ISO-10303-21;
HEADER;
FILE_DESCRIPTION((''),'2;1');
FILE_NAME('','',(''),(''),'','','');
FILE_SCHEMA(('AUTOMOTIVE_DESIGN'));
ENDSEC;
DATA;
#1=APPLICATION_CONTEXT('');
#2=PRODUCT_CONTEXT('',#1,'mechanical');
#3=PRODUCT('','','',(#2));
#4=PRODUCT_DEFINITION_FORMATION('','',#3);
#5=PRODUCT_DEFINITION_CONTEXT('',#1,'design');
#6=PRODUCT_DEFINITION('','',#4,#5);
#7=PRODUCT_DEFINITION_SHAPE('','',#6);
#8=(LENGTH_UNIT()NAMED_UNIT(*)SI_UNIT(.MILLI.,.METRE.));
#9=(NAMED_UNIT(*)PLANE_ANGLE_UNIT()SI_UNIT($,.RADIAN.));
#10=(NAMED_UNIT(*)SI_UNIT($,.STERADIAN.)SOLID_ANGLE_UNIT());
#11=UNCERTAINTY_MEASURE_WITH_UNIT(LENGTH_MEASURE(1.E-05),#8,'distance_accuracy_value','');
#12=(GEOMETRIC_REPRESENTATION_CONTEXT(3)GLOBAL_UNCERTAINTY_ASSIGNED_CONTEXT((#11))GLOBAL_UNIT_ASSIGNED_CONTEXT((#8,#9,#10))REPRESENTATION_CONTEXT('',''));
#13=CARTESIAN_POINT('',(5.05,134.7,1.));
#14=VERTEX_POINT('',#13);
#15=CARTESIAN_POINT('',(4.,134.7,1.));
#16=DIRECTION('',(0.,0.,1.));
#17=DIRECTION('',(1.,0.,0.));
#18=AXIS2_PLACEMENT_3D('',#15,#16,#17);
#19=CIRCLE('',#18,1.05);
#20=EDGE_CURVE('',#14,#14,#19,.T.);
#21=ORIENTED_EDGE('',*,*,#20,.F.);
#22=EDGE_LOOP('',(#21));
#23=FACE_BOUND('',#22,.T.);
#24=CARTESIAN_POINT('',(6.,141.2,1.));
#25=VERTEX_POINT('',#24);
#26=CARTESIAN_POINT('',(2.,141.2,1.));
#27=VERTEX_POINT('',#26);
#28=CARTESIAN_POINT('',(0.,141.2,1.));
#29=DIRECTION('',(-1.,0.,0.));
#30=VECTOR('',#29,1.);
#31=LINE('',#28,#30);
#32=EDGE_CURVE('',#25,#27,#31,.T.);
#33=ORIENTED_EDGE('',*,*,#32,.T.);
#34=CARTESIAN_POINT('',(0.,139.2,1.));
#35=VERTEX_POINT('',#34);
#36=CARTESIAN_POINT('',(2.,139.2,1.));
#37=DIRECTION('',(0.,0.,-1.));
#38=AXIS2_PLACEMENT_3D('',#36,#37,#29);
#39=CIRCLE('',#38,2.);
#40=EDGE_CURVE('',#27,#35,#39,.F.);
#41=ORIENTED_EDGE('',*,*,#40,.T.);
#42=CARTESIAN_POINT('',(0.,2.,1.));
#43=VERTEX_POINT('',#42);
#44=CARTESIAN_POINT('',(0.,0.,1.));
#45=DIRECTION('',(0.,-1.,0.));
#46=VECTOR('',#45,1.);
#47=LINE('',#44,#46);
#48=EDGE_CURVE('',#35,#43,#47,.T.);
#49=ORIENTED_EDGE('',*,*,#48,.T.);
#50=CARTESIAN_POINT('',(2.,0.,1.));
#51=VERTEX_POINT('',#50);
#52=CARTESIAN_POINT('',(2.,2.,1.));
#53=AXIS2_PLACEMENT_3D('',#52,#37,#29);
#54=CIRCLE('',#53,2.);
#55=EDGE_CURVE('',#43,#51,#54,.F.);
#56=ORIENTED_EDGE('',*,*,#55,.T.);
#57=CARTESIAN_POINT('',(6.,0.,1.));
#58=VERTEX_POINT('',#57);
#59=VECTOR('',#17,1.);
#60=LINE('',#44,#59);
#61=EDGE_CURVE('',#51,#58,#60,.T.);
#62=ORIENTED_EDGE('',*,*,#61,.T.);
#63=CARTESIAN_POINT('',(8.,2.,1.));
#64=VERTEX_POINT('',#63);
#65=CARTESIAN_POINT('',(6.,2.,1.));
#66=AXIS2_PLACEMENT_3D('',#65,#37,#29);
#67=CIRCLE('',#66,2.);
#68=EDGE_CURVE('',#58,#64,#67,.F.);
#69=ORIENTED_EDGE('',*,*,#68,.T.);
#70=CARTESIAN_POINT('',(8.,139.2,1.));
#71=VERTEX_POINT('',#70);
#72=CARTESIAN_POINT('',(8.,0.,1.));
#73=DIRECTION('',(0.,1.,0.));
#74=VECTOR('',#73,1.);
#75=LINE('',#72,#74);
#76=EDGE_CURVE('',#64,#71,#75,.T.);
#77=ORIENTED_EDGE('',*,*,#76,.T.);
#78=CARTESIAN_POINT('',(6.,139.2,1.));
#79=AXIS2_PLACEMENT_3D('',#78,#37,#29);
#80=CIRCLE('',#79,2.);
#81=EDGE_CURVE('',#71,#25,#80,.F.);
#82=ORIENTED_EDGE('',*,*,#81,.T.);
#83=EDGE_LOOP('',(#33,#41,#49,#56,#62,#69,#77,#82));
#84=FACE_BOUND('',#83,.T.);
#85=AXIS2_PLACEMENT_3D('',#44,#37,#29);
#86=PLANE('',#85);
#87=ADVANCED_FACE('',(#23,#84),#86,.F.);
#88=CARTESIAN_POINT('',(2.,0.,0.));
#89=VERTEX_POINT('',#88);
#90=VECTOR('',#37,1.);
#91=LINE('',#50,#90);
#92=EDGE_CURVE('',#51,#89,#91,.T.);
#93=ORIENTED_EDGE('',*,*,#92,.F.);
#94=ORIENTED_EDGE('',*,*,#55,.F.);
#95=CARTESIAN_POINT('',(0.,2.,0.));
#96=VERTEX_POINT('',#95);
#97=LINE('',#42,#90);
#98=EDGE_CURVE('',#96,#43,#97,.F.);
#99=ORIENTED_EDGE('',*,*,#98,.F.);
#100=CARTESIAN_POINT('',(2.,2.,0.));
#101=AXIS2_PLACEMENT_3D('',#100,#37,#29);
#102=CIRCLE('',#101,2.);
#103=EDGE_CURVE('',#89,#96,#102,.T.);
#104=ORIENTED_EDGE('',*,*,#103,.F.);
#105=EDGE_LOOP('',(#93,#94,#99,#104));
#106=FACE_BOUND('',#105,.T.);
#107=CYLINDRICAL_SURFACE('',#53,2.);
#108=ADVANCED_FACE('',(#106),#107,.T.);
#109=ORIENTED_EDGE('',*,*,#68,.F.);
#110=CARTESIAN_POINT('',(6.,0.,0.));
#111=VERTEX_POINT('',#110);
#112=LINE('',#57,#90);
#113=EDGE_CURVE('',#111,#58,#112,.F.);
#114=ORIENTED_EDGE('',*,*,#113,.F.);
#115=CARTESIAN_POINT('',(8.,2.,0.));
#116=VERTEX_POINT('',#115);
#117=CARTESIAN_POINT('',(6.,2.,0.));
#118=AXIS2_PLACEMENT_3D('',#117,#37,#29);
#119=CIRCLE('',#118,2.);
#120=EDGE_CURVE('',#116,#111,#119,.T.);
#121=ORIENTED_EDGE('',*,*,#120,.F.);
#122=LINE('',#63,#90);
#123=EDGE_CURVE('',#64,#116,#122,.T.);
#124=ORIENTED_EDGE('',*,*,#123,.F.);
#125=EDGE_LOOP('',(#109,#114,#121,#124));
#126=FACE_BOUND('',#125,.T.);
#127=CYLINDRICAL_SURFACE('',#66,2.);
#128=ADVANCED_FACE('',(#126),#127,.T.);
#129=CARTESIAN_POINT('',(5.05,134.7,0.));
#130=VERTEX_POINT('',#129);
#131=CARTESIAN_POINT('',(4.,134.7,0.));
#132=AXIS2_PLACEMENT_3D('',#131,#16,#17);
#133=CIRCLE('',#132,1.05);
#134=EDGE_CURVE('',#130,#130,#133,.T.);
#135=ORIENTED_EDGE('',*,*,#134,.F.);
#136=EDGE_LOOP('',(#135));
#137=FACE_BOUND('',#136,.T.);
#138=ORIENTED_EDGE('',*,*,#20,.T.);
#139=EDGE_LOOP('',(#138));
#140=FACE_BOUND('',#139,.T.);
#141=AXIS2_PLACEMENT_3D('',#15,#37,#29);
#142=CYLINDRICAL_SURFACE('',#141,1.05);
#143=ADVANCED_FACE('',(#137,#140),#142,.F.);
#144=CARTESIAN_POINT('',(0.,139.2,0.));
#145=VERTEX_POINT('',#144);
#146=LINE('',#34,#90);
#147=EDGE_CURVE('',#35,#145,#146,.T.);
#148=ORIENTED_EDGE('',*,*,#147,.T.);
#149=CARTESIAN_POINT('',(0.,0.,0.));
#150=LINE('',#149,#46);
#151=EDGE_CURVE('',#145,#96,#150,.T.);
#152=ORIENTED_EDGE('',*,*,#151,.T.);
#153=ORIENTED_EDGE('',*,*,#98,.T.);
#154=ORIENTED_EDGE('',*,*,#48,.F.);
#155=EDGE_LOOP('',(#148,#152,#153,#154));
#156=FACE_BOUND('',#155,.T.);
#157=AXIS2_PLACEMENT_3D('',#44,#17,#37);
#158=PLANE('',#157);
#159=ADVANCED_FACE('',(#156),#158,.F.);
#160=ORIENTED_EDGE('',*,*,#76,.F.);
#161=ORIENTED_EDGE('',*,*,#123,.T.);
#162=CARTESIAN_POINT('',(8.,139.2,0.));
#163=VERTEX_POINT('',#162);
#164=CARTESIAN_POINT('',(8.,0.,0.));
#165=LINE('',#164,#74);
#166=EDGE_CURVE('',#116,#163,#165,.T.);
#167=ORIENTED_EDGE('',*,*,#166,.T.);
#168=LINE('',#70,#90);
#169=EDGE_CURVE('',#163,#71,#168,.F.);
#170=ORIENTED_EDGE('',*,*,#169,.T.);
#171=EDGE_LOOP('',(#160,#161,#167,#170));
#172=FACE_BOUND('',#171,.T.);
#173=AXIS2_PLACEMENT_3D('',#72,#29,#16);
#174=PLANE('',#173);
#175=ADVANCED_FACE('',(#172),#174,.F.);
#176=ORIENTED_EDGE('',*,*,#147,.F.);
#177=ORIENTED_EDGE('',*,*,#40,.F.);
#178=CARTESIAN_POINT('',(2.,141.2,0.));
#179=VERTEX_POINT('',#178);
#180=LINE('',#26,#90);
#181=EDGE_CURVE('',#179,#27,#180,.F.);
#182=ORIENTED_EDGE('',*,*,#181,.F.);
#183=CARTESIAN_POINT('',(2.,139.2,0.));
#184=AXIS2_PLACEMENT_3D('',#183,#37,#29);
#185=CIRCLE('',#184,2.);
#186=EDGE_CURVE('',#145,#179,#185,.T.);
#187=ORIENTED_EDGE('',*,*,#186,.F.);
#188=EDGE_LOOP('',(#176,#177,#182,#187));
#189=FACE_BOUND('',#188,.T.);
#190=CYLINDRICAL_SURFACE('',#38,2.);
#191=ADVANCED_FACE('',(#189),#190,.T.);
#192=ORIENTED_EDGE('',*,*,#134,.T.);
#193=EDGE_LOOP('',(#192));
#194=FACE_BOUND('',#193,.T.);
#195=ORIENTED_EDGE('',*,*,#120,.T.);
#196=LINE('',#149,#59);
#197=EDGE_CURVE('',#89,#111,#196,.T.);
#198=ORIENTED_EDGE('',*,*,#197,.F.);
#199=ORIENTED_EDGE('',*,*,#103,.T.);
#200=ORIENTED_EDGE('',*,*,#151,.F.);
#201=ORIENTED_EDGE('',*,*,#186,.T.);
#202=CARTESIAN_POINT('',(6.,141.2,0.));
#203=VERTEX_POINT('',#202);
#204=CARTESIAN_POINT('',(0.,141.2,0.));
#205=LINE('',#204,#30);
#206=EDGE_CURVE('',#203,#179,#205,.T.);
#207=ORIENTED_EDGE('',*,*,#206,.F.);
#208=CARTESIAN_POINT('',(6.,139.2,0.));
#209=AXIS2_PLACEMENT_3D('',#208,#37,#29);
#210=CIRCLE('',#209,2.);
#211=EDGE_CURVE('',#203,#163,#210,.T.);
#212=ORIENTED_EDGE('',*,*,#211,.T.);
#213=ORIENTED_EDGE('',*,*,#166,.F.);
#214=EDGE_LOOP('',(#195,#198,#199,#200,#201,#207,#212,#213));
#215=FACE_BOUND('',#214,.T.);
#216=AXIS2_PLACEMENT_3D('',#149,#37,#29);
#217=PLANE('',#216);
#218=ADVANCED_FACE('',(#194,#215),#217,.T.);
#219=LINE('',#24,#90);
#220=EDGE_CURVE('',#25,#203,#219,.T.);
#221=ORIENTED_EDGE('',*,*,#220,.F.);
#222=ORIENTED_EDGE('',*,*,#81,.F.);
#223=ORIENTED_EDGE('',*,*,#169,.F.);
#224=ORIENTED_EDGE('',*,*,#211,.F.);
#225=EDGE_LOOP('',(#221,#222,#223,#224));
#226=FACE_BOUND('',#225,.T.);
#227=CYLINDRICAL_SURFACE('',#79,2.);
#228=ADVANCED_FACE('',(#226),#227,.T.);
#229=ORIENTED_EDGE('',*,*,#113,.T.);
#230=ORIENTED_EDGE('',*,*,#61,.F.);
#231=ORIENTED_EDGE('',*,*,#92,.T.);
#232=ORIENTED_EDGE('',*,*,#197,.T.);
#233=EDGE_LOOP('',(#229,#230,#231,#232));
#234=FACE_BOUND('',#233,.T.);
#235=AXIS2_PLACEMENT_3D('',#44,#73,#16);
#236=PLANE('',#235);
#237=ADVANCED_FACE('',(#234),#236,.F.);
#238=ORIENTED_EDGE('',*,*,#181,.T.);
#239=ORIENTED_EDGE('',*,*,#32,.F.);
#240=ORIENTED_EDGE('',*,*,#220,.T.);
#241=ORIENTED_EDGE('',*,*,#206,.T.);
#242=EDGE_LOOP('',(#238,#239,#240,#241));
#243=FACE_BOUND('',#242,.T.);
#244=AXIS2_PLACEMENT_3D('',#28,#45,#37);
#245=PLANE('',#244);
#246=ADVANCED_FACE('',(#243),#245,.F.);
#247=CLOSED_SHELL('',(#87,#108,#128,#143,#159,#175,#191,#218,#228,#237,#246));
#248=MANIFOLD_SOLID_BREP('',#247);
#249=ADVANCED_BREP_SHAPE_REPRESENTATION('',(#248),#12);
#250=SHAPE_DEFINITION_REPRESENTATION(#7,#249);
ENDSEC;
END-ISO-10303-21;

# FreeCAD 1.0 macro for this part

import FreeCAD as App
import Part
import Sketcher


def edges_at(feature, points):
    """Names of the edges that pass closest to the given points."""
    edges = feature.Shape.Edges
    near = lambda p: min(range(len(edges)), key=lambda i: edges[i].distToShape(Part.Vertex(*p))[0])
    return sorted({f"Edge{near(p) + 1}" for p in points})

doc = App.newDocument("Part")
params = doc.addObject("Spreadsheet::Sheet", "Params")
for row, (alias, value) in enumerate([
    ("sketch1_diameter", "2.1 mm"),
    ("sketch1_width", "8 mm"),
    ("sketch1_height", "141.2 mm"),
    ("pad1_length", "1 mm"),
    ("fillet_radius", "2 mm"),
], start=1):
    params.set(f"A{row}", alias)
    params.set(f"B{row}", "=" + value)
    params.setAlias(f"B{row}", alias)

body = doc.addObject("PartDesign::Body", "Body")

sketch1 = body.newObject("Sketcher::SketchObject", "Sketch")
sketch1.AttachmentSupport = (doc.getObject("XY_Plane"), [""])
sketch1.MapMode = "FlatFace"
sketch1.addGeometry(Part.LineSegment(App.Vector(0, 141.2, 0), App.Vector(0, 0, 0)), False)
sketch1.addGeometry(Part.LineSegment(App.Vector(0, 0, 0), App.Vector(8, 0, 0)), False)
sketch1.addGeometry(Part.LineSegment(App.Vector(8, 0, 0), App.Vector(8, 141.2, 0)), False)
sketch1.addGeometry(Part.LineSegment(App.Vector(8, 141.2, 0), App.Vector(0, 141.2, 0)), False)
sketch1.addGeometry(Part.Circle(App.Vector(4, 134.7, 0), App.Vector(0, 0, 1), 1.1), False)
sketch1.addConstraint(Sketcher.Constraint("Coincident", 0, 2, 1, 1))
sketch1.addConstraint(Sketcher.Constraint("Coincident", 1, 2, 2, 1))
sketch1.addConstraint(Sketcher.Constraint("Coincident", 2, 2, 3, 1))
sketch1.addConstraint(Sketcher.Constraint("Coincident", 3, 2, 0, 1))
sketch1.addConstraint(Sketcher.Constraint("Vertical", 0))
sketch1.addConstraint(Sketcher.Constraint("Horizontal", 1))
sketch1.addConstraint(Sketcher.Constraint("Vertical", 2))
sketch1.addConstraint(Sketcher.Constraint("Horizontal", 3))
sketch1.addConstraint(Sketcher.Constraint("Coincident", 0, 2, -1, 1))
sketch1.addConstraint(Sketcher.Constraint("Diameter", 4, 2.1))
sketch1.addConstraint(Sketcher.Constraint("DistanceX", 1, 1, 1, 2, 8.0))
sketch1.addConstraint(Sketcher.Constraint("DistanceY", 0, 2, 0, 1, 141.2))
sketch1.addConstraint(Sketcher.Constraint("DistanceX", -1, 1, 4, 3, 4.0))
sketch1.addConstraint(Sketcher.Constraint("DistanceY", -1, 1, 4, 3, 134.7))
sketch1.setExpression("Constraints[9]", "Params.sketch1_diameter")
sketch1.setExpression("Constraints[10]", "Params.sketch1_width")
sketch1.setExpression("Constraints[11]", "Params.sketch1_height")
pad1 = body.newObject("PartDesign::Pad", "Pad")
pad1.Profile = sketch1
pad1.setExpression("Length", "Params.pad1_length")
doc.recompute()

fillet = body.newObject("PartDesign::Fillet", "Fillet")
fillet.Base = (pad1, edges_at(pad1, [
    (0, 141.2, 0.5),
    (8, 141.2, 0.5),
    (8, 0, 0.5),
    (0, 0, 0.5),
]))
fillet.setExpression("Radius", "Params.fillet_radius")

doc.recompute()
